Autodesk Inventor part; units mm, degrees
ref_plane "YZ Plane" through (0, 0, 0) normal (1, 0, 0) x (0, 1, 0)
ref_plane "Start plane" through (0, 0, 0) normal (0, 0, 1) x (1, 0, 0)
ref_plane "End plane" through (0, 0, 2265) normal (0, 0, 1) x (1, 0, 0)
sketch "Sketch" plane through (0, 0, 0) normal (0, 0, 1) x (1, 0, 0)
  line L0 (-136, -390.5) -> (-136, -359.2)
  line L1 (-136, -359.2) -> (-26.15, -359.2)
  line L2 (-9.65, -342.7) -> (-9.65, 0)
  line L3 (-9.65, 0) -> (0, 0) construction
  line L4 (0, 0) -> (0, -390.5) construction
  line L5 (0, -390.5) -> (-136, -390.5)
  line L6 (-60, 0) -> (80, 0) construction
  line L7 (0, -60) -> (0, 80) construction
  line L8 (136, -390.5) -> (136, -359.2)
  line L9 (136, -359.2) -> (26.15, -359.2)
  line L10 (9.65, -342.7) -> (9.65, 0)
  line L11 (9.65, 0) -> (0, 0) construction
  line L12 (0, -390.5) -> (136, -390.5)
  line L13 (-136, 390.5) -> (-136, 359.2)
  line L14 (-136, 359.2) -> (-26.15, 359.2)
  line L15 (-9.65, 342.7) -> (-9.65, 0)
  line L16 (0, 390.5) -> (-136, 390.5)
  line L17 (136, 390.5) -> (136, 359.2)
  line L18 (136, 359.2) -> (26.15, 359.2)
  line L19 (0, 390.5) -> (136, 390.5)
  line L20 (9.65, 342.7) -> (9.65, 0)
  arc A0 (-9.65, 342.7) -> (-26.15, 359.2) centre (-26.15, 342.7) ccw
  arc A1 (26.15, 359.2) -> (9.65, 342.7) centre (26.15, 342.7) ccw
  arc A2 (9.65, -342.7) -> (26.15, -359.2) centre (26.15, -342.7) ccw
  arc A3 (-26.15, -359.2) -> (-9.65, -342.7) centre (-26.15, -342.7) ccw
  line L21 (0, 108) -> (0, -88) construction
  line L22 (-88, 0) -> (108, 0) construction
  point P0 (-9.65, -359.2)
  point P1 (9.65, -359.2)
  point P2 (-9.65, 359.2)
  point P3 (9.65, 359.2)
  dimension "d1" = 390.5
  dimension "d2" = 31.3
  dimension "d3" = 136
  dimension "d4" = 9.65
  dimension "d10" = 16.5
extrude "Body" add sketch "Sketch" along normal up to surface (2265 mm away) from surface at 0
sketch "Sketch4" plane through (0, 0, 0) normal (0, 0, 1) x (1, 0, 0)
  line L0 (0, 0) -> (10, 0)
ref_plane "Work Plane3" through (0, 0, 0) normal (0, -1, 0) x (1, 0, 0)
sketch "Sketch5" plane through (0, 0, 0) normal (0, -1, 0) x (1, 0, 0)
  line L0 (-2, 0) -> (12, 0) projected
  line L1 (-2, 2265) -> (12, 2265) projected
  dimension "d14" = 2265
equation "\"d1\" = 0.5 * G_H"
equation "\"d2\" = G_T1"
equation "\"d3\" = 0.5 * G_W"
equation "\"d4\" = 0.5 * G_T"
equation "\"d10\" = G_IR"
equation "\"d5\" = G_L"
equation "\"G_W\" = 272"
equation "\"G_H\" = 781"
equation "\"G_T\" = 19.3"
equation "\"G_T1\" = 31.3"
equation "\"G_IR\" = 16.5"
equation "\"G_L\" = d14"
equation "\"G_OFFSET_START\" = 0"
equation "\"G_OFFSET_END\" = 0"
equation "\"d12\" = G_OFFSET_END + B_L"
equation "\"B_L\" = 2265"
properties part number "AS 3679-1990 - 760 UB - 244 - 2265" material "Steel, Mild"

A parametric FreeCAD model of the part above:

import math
import FreeCAD as App
import Part
import Sketcher

V = App.Vector

doc = App.newDocument("Part")
params = doc.addObject("Spreadsheet::Sheet", "Params")
for row, (alias, value) in enumerate([
    ("sketch1_radius", "16.5 mm"),
    ("sketch1_height", "31.3 mm"),
    ("pad1_length", "2265 mm"),
], start=1):
    params.set(f"A{row}", alias)
    params.set(f"B{row}", "=" + value)
    params.setAlias(f"B{row}", alias)

body = doc.addObject("PartDesign::Body", "Body")

# Sketch on XY plane
sketch1 = doc.addObject("Sketcher::SketchObject", "Sketch")
body.addObject(sketch1)
sketch1.AttachmentSupport = (doc.XY_Plane, [""])
sketch1.MapMode = "FlatFace"
sketch1.addGeometry(Part.LineSegment(V(-136, -359.2, 0), V(-136, -390.5, 0)), False)
sketch1.addGeometry(Part.LineSegment(V(-136, -390.5, 0), V(136, -390.5, 0)), False)
sketch1.addGeometry(Part.LineSegment(V(136, -390.5, 0), V(136, -359.2, 0)), False)
sketch1.addGeometry(Part.LineSegment(V(136, -359.2, 0), V(26.15, -359.2, 0)), False)
sketch1.addGeometry(Part.ArcOfCircle(Part.Circle(V(26.15, -342.7, 0), V(0, 0, 1), 16.5), math.radians(180), math.radians(270)), False)
sketch1.addGeometry(Part.LineSegment(V(9.65, -342.7, 0), V(9.65, 342.7, 0)), False)
sketch1.addGeometry(Part.ArcOfCircle(Part.Circle(V(26.15, 342.7, 0), V(0, 0, 1), 16.5), math.radians(90), math.radians(180)), False)
sketch1.addGeometry(Part.LineSegment(V(26.15, 359.2, 0), V(136, 359.2, 0)), False)
sketch1.addGeometry(Part.LineSegment(V(136, 359.2, 0), V(136, 390.5, 0)), False)
sketch1.addGeometry(Part.LineSegment(V(136, 390.5, 0), V(-136, 390.5, 0)), False)
sketch1.addGeometry(Part.LineSegment(V(-136, 390.5, 0), V(-136, 359.2, 0)), False)
sketch1.addGeometry(Part.LineSegment(V(-136, 359.2, 0), V(-26.15, 359.2, 0)), False)
sketch1.addGeometry(Part.ArcOfCircle(Part.Circle(V(-26.15, 342.7, 0), V(0, 0, 1), 16.5), math.radians(0), math.radians(90)), False)
sketch1.addGeometry(Part.LineSegment(V(-9.65, 342.7, 0), V(-9.65, -342.7, 0)), False)
sketch1.addGeometry(Part.ArcOfCircle(Part.Circle(V(-26.15, -342.7, 0), V(0, 0, 1), 16.5), math.radians(-90), math.radians(0)), False)
sketch1.addGeometry(Part.LineSegment(V(-26.15, -359.2, 0), V(-136, -359.2, 0)), False)
sketch1.addConstraint(Sketcher.Constraint("Coincident", 0, 2, 1, 1))
sketch1.addConstraint(Sketcher.Constraint("Coincident", 1, 2, 2, 1))
sketch1.addConstraint(Sketcher.Constraint("Coincident", 2, 2, 3, 1))
sketch1.addConstraint(Sketcher.Constraint("Tangent", 3, 2, 4, 2))
sketch1.addConstraint(Sketcher.Constraint("Tangent", 4, 1, 5, 1))
sketch1.addConstraint(Sketcher.Constraint("Tangent", 5, 2, 6, 2))
sketch1.addConstraint(Sketcher.Constraint("Tangent", 6, 1, 7, 1))
sketch1.addConstraint(Sketcher.Constraint("Coincident", 7, 2, 8, 1))
sketch1.addConstraint(Sketcher.Constraint("Coincident", 8, 2, 9, 1))
sketch1.addConstraint(Sketcher.Constraint("Coincident", 9, 2, 10, 1))
sketch1.addConstraint(Sketcher.Constraint("Coincident", 10, 2, 11, 1))
sketch1.addConstraint(Sketcher.Constraint("Tangent", 11, 2, 12, 2))
sketch1.addConstraint(Sketcher.Constraint("Tangent", 12, 1, 13, 1))
sketch1.addConstraint(Sketcher.Constraint("Tangent", 13, 2, 14, 2))
sketch1.addConstraint(Sketcher.Constraint("Tangent", 14, 1, 15, 1))
sketch1.addConstraint(Sketcher.Constraint("Coincident", 15, 2, 0, 1))
sketch1.addConstraint(Sketcher.Constraint("Vertical", 0))
sketch1.addConstraint(Sketcher.Constraint("Horizontal", 1))
sketch1.addConstraint(Sketcher.Constraint("Vertical", 2))
sketch1.addConstraint(Sketcher.Constraint("Horizontal", 3))
sketch1.addConstraint(Sketcher.Constraint("Vertical", 5))
sketch1.addConstraint(Sketcher.Constraint("Horizontal", 7))
sketch1.addConstraint(Sketcher.Constraint("Vertical", 8))
sketch1.addConstraint(Sketcher.Constraint("Horizontal", 9))
sketch1.addConstraint(Sketcher.Constraint("Vertical", 10))
sketch1.addConstraint(Sketcher.Constraint("Horizontal", 11))
sketch1.addConstraint(Sketcher.Constraint("Vertical", 13))
sketch1.addConstraint(Sketcher.Constraint("Horizontal", 15))
sketch1.addConstraint(Sketcher.Constraint("Equal", 4, 6))
sketch1.addConstraint(Sketcher.Constraint("Equal", 6, 12))
sketch1.addConstraint(Sketcher.Constraint("Equal", 12, 14))
sketch1.addConstraint(Sketcher.Constraint("Symmetric", 4, 3, 12, 3, -1, 1))
sketch1.addConstraint(Sketcher.Constraint("Symmetric", 0, 2, 8, 2, -1, 1))
sketch1.addConstraint(Sketcher.Constraint("Symmetric", 7, 2, 10, 2, -2))
sketch1.addConstraint(Sketcher.Constraint("Symmetric", 2, 2, 15, 2, -2))
sketch1.addConstraint(Sketcher.Constraint("Radius", 4, 16.5))
sketch1.addConstraint(Sketcher.Constraint("DistanceY", 0, 2, 0, 1, 31.3))
sketch1.addConstraint(Sketcher.Constraint("DistanceX", 0, 2, -1, 1, 136.0))
sketch1.addConstraint(Sketcher.Constraint("DistanceY", 0, 2, -1, 1, 390.5))
sketch1.addConstraint(Sketcher.Constraint("DistanceX", -1, 1, 4, 1, 9.65))
sketch1.setExpression("Constraints[35]", "Params.sketch1_radius")
sketch1.setExpression("Constraints[36]", "Params.sketch1_height")
pad1 = doc.addObject("PartDesign::Pad", "Pad")
body.addObject(pad1)
pad1.Profile = sketch1
pad1.setExpression("Length", "Params.pad1_length")

doc.recompute()
